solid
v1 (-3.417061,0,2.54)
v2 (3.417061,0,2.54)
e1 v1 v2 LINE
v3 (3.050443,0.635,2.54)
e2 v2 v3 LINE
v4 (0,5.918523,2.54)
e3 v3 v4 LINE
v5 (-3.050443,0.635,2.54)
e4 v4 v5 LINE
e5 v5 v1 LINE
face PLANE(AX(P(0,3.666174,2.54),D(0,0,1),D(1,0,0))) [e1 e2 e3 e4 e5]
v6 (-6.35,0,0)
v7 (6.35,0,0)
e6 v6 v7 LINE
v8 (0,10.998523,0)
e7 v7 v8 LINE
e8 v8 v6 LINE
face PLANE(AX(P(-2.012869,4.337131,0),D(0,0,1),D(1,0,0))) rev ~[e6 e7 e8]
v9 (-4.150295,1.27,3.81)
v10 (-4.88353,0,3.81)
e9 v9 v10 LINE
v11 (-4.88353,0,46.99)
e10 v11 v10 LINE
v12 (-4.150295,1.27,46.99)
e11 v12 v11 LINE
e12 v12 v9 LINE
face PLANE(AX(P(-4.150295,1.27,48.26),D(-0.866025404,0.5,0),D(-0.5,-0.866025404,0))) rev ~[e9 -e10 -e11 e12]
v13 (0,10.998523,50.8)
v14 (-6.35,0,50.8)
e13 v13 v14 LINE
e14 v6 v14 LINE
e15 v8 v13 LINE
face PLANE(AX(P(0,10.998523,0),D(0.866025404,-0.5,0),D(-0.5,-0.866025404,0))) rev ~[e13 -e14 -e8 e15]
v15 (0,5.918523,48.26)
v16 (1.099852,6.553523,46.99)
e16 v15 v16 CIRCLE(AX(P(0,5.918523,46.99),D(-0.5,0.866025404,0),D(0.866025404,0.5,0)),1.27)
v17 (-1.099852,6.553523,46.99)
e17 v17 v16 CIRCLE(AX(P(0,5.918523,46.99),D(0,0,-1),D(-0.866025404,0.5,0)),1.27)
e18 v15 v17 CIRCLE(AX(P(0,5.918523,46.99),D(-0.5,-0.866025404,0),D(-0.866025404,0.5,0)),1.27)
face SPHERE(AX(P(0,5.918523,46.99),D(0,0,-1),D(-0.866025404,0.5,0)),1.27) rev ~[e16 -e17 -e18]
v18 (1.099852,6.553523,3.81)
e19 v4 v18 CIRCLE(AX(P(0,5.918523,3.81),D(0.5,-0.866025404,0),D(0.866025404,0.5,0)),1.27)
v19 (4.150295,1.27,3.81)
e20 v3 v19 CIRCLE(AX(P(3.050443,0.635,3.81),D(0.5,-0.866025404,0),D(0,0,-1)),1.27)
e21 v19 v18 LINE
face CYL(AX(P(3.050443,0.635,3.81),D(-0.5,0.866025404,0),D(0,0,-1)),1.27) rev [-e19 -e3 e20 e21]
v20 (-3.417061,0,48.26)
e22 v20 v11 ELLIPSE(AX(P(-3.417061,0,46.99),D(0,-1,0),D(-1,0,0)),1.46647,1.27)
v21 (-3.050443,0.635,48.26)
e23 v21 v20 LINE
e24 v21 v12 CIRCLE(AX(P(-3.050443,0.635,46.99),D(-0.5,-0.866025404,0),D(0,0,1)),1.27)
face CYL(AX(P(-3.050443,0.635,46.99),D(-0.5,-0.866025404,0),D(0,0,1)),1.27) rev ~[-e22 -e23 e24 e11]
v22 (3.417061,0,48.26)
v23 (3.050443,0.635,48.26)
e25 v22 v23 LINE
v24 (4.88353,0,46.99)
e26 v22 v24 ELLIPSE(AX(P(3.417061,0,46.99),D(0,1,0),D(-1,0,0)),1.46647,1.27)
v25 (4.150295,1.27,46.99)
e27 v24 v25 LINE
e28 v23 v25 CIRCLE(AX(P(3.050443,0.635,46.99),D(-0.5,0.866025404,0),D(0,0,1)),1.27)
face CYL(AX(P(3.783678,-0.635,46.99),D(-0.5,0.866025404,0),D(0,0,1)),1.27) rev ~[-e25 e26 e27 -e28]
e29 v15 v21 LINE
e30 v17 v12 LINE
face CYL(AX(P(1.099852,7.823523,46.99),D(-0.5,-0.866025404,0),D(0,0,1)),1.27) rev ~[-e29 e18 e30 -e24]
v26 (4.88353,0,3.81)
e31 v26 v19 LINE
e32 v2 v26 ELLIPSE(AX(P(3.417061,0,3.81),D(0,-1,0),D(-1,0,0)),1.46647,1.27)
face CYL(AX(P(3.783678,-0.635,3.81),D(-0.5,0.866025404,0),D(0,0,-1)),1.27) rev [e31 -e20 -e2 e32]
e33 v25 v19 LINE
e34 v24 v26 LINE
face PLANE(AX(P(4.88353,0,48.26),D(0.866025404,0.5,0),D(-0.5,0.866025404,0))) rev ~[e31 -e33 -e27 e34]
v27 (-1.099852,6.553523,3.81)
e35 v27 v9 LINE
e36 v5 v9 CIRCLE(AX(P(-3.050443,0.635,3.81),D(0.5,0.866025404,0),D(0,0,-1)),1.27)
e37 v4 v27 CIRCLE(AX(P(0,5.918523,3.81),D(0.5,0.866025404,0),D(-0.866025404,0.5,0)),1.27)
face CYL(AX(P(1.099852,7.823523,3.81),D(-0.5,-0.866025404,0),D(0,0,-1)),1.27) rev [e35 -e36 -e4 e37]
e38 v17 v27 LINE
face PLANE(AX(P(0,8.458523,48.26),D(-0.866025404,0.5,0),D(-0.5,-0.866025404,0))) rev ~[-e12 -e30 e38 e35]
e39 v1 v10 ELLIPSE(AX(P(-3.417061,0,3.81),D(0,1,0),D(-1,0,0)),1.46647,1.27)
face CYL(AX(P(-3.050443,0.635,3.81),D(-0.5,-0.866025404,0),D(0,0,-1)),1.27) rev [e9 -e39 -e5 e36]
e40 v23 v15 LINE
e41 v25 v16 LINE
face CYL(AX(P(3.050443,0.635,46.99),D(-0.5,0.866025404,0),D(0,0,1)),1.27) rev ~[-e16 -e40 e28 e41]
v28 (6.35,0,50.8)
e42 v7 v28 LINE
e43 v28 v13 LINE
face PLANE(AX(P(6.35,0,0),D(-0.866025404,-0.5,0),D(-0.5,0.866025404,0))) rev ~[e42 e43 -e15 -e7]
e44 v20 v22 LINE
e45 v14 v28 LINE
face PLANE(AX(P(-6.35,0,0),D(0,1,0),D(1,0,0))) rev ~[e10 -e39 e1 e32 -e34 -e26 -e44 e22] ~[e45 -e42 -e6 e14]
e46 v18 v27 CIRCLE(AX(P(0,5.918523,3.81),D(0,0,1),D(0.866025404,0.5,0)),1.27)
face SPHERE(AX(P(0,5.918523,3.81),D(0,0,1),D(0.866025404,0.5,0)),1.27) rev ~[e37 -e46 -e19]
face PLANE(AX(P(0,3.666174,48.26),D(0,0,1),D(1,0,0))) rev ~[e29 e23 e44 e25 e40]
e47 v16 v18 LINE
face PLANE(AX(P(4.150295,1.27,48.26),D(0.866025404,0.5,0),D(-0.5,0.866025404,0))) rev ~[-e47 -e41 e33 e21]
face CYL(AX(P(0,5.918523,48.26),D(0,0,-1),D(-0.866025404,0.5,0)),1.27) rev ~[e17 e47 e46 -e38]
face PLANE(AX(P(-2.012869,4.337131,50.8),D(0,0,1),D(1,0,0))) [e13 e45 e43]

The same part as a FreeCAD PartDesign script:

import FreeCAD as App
import Part
import Sketcher

V = App.Vector
Q = App.Units.Quantity


def edges_at(feature, points):
    """Names of the edges that pass closest to the given points."""
    edges = feature.Shape.Edges
    near = lambda p: min(range(len(edges)), key=lambda i: edges[i].distToShape(Part.Vertex(*p))[0])
    return sorted({f"Edge{near(p) + 1}" for p in points})

doc = App.newDocument("Part")
body = doc.addObject("PartDesign::Body", "Body")

# Sketch on XY plane
sketch1 = body.newObject("Sketcher::SketchObject", "Sketch")
sketch1.AttachmentSupport = (doc.getObject("XY_Plane"), [""])
sketch1.MapMode = "FlatFace"
sketch1.addGeometry(Part.LineSegment(V(-6, 0, 0), V(6, 0, 0)), False)
sketch1.addGeometry(Part.LineSegment(V(6, 0, 0), V(0, 11, 0)), False)
sketch1.addGeometry(Part.LineSegment(V(0, 11, 0), V(-6, 0, 0)), False)
sketch1.addConstraint(Sketcher.Constraint("Coincident", 0, 2, 1, 1))
sketch1.addConstraint(Sketcher.Constraint("Coincident", 1, 2, 2, 1))
sketch1.addConstraint(Sketcher.Constraint("Coincident", 2, 2, 0, 1))
sketch1.addConstraint(Sketcher.Constraint("Horizontal", 0))
sketch1.addConstraint(Sketcher.Constraint("Symmetric", 0, 2, 2, 2, -1, 1))
sketch1.addConstraint(Sketcher.Constraint("PointOnObject", 1, 2, -2))
sketch1.addConstraint(Sketcher.Constraint("DistanceX", 0, 1, 0, 2, Q("0.5 in")))
sketch1.addConstraint(Sketcher.Constraint("Angle", 1, Q("120 deg")))
pad1 = body.newObject("PartDesign::Pad", "Pad")
pad1.Profile = sketch1
pad1.Length = Q("2 in")

# Sketch on XY plane
sketch2 = body.newObject("Sketcher::SketchObject", "Sketch001")
sketch2.AttachmentSupport = (doc.getObject("XY_Plane"), [""])
sketch2.MapMode = "FlatFace"
sketch2.AttachmentOffset = App.Placement(V(0, 0, 1.9 * 25.4), App.Rotation())
sketch2.addGeometry(Part.LineSegment(V(0, 8.5, 0), V(-4.2, 1.3, 0)), False)
sketch2.addGeometry(Part.LineSegment(V(-4.2, 1.3, 0), V(-4.9, 0, 0)), False)
sketch2.addGeometry(Part.LineSegment(V(-4.9, 0, 0), V(4.9, 0, 0)), False)
sketch2.addGeometry(Part.LineSegment(V(4.9, 0, 0), V(4.2, 1.3, 0)), False)
sketch2.addGeometry(Part.LineSegment(V(4.2, 1.3, 0), V(0, 8.5, 0)), False)
sketch2.addConstraint(Sketcher.Constraint("Coincident", 0, 2, 1, 1))
sketch2.addConstraint(Sketcher.Constraint("Coincident", 1, 2, 2, 1))
sketch2.addConstraint(Sketcher.Constraint("Coincident", 2, 2, 3, 1))
sketch2.addConstraint(Sketcher.Constraint("Coincident", 3, 2, 4, 1))
sketch2.addConstraint(Sketcher.Constraint("Coincident", 4, 2, 0, 1))
sketch2.addConstraint(Sketcher.Constraint("Horizontal", 2))
sketch2.addConstraint(Sketcher.Constraint("Symmetric", 1, 2, 2, 2, -1, 1))
sketch2.addConstraint(Sketcher.Constraint("Symmetric", 0, 2, 3, 2, -2))
sketch2.addConstraint(Sketcher.Constraint("PointOnObject", 4, 2, -2))
sketch2.addConstraint(Sketcher.Constraint("Parallel", 0, 1))
sketch2.addConstraint(Sketcher.Constraint("Angle", 0, Q("-120 deg")))
sketch2.addConstraint(Sketcher.Constraint("DistanceY", -1, 1, 0, 2, Q("0.05 in")))
sketch2.addConstraint(Sketcher.Constraint("DistanceX", 2, 1, 2, 2, Q("9.767061 mm")))
pocket1 = body.newObject("PartDesign::Pocket", "Pocket")
pocket1.Profile = sketch2
pocket1.Length = Q("1.8 in")
doc.recompute()

fillet = body.newObject("PartDesign::Fillet", "Fillet")
fillet.Base = (pocket1, edges_at(pocket1, [
    (0, 8.459, 25.4),
    (2.075, 4.864, 2.54),
    (-2.075, 4.864, 2.54),
    (-2.075, 4.864, 48.26),
    (2.075, 4.864, 48.26),
]))
fillet.Radius = Q("0.05 in")

doc.recompute()
